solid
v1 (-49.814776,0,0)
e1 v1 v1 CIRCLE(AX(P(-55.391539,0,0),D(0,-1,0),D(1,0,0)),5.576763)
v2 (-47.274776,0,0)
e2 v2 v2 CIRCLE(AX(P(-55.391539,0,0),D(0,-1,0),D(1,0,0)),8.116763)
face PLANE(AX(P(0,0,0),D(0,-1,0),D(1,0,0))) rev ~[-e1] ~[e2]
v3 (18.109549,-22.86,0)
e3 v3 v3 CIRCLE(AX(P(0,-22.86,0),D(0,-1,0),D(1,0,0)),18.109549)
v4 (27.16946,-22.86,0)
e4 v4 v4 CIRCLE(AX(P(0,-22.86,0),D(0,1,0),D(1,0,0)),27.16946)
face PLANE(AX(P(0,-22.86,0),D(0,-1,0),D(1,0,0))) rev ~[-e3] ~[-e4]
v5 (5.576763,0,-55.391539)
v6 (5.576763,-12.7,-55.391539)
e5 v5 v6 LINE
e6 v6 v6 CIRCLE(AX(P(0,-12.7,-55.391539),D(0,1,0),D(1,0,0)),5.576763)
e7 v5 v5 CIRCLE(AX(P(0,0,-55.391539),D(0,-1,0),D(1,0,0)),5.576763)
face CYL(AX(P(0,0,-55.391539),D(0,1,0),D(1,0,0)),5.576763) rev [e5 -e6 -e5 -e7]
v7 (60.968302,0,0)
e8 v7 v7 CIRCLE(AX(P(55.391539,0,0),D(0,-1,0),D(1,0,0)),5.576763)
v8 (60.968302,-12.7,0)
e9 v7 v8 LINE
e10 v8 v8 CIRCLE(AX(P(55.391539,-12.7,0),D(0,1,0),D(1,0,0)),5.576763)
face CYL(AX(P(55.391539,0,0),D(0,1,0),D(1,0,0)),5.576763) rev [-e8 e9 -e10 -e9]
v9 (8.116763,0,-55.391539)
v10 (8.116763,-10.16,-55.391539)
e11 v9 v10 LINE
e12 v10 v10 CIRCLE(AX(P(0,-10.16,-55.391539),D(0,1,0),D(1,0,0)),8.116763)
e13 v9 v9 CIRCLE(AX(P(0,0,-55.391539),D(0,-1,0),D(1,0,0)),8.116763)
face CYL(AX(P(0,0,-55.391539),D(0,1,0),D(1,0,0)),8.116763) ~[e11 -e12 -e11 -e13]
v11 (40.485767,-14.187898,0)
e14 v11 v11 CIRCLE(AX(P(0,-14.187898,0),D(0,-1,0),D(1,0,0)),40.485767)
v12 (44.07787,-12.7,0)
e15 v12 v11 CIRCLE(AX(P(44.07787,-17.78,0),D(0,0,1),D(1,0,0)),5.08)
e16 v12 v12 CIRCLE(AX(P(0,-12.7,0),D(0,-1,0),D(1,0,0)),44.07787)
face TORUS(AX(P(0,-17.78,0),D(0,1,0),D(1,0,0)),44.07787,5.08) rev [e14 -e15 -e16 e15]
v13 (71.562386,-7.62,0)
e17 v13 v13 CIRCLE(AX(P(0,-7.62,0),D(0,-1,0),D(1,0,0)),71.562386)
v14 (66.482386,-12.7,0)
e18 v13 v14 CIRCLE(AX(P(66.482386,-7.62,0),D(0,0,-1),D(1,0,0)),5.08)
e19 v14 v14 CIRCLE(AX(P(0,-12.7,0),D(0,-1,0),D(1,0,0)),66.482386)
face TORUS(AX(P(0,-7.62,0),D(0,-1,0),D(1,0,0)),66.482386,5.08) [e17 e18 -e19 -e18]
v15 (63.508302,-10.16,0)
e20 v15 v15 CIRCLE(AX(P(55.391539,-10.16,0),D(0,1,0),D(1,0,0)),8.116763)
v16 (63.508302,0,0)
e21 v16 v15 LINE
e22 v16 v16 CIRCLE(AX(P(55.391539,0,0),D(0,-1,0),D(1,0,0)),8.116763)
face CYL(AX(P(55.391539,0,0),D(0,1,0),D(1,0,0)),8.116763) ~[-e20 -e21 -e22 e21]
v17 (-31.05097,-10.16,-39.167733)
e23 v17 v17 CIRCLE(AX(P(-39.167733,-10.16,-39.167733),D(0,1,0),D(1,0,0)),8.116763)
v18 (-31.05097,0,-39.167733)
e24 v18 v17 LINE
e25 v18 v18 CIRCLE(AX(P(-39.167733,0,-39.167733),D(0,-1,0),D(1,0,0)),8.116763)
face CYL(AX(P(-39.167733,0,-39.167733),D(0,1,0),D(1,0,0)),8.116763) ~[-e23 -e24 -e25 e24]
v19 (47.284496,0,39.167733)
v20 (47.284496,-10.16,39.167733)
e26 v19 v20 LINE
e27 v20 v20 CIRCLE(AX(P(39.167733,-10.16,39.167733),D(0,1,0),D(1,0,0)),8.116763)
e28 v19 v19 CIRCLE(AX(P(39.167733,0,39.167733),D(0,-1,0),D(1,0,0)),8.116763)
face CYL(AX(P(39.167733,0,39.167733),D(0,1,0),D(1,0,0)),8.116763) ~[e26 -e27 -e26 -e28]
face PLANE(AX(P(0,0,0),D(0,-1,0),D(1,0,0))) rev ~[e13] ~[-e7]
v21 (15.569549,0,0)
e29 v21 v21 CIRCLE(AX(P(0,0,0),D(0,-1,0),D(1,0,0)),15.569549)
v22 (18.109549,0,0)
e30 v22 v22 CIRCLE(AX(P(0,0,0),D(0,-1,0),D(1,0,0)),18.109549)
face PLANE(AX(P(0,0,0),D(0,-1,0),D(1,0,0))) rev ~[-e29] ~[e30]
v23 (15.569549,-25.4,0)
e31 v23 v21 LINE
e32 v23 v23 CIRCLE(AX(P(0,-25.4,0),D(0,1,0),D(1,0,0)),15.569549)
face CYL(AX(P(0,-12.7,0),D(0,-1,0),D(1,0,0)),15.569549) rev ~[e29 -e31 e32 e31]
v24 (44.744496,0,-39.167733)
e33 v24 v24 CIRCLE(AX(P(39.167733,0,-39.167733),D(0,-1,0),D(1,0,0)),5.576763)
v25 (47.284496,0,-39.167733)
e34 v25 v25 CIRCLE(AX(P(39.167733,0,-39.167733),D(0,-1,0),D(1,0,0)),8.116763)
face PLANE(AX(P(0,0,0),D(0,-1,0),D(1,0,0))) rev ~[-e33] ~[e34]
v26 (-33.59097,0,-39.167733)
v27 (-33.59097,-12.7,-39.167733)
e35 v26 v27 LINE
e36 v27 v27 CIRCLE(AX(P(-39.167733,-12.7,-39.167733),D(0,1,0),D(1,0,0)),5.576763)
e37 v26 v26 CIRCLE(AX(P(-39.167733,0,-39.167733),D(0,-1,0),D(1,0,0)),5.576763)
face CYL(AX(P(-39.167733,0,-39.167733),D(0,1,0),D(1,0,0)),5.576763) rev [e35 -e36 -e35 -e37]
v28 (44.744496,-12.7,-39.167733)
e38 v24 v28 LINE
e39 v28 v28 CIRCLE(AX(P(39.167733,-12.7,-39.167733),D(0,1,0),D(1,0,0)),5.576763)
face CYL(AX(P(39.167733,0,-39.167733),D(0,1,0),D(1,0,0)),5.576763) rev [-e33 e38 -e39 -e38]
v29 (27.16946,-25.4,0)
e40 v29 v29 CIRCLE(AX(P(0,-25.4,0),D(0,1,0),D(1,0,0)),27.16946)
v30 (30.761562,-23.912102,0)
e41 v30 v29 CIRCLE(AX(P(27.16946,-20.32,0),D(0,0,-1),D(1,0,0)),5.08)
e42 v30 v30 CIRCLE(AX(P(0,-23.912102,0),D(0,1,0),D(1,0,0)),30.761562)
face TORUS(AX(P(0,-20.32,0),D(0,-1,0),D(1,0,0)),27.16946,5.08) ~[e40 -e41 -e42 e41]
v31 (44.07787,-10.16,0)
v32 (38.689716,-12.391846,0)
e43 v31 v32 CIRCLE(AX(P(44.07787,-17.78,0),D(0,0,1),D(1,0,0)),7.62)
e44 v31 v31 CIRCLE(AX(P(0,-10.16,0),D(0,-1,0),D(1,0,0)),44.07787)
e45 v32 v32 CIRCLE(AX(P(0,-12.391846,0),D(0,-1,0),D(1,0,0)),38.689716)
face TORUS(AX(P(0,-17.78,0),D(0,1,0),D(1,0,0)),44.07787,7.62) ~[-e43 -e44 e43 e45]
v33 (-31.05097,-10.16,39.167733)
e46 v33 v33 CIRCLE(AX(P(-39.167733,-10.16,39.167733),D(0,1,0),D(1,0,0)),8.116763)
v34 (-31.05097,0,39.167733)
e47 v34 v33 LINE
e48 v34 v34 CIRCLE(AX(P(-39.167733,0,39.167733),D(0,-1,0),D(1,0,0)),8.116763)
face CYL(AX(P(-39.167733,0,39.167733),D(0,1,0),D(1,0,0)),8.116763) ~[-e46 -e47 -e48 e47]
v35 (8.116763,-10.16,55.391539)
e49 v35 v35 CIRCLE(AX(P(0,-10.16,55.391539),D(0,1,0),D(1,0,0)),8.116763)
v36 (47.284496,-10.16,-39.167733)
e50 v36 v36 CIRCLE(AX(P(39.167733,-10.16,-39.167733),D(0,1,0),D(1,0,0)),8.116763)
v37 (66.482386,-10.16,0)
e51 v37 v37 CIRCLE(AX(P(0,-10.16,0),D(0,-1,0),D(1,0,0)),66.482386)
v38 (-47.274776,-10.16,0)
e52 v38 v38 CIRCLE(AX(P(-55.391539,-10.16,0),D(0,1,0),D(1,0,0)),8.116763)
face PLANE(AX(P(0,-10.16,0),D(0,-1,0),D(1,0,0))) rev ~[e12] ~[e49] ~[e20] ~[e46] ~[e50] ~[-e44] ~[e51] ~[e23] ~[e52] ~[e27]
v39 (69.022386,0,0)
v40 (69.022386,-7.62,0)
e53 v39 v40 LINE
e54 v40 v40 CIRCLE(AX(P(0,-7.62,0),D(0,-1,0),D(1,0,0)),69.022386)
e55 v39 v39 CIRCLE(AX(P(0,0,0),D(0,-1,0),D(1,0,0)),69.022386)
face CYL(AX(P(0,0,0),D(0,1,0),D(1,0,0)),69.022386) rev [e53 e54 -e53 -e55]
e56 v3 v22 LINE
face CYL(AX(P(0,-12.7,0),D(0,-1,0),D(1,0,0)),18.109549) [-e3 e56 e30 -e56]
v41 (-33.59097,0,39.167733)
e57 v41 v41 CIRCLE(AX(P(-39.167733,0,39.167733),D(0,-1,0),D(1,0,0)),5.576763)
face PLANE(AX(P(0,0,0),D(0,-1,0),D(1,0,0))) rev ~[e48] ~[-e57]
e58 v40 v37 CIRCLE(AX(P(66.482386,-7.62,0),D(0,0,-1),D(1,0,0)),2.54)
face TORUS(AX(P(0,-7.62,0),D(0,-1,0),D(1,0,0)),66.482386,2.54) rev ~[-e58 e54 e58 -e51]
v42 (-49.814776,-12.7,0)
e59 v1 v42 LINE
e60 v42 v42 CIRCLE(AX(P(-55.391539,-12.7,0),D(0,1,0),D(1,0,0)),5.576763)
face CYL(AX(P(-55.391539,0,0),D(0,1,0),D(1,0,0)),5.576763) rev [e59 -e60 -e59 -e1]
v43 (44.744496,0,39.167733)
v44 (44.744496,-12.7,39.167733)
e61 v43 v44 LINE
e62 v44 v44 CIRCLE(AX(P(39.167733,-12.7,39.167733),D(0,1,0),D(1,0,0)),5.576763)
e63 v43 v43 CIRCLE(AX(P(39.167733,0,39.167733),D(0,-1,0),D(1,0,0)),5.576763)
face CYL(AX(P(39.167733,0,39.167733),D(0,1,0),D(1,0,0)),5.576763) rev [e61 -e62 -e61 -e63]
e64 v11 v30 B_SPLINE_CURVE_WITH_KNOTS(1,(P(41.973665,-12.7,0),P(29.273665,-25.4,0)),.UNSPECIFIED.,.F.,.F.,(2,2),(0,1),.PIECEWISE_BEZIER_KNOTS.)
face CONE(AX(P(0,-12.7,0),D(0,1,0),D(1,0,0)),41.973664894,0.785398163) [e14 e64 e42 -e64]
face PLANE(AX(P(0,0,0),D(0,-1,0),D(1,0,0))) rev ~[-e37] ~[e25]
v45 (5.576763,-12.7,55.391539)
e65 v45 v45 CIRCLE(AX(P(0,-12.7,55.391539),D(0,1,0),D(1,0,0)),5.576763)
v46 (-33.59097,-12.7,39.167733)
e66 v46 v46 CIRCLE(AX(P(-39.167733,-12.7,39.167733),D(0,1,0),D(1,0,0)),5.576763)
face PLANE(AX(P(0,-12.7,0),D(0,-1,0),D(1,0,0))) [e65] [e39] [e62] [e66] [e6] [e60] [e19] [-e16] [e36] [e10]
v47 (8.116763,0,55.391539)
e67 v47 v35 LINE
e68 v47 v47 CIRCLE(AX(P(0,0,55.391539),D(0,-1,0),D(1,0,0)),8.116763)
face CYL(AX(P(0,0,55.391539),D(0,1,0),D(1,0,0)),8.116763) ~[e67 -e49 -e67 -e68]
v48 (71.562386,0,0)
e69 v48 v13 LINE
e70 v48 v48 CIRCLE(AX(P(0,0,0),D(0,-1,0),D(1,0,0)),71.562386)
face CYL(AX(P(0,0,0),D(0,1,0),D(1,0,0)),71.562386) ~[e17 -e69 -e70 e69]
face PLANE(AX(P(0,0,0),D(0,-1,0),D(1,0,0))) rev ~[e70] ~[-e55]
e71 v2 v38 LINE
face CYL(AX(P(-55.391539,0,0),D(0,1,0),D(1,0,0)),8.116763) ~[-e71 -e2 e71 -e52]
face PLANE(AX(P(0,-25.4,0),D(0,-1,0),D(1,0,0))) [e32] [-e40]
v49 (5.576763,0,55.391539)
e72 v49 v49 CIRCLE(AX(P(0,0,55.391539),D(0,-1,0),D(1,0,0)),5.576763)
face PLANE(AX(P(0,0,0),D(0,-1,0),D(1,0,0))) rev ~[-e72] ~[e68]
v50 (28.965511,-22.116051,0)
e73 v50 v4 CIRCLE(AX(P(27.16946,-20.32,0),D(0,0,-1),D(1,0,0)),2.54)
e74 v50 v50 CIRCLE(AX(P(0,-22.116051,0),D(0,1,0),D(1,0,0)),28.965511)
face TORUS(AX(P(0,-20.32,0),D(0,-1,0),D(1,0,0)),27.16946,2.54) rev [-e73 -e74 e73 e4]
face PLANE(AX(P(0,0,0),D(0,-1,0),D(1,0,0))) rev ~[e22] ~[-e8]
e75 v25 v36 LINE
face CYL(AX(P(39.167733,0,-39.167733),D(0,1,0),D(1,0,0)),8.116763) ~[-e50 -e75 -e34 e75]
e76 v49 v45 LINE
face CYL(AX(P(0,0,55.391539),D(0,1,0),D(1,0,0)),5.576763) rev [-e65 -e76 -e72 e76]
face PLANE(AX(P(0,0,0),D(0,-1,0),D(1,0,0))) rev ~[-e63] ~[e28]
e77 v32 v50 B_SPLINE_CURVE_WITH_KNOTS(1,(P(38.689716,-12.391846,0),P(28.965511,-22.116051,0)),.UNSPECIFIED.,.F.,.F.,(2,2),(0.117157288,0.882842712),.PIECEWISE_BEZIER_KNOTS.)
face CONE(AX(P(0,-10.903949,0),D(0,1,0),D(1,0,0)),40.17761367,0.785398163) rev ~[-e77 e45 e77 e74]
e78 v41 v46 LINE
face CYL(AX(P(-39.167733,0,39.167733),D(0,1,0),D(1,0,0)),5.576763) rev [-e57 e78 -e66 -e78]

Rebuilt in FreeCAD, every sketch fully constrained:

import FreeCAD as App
import Part
import Sketcher

V = App.Vector


def edges_at(feature, points):
    """Names of the edges that pass closest to the given points."""
    edges = feature.Shape.Edges
    near = lambda p: min(range(len(edges)), key=lambda i: edges[i].distToShape(Part.Vertex(*p))[0])
    return sorted({f"Edge{near(p) + 1}" for p in points})


def faces_at(feature, points):
    """Names of the faces that lie closest to the given points."""
    faces = feature.Shape.Faces
    near = lambda p: min(range(len(faces)), key=lambda i: faces[i].distToShape(Part.Vertex(*p))[0])
    return sorted({f"Face{near(p) + 1}" for p in points})

doc = App.newDocument("Part")
params = doc.addObject("Spreadsheet::Sheet", "Params")
for row, (alias, value) in enumerate([
    ("pad1_length", "0.5 in"),
    ("pad2_length", "0.5 in"),
    ("pad2_taper", "-45 deg"),
    ("pocket2_length", "1 in"),
    ("fillet_radius", "0.2 in"),
    ("thickness_wall", "0.1 in"),
], start=1):
    params.set(f"A{row}", alias)
    params.set(f"B{row}", "=" + value)
    params.setAlias(f"B{row}", alias)

body = doc.addObject("PartDesign::Body", "Body")

# Sketch on XZ plane
sketch1 = body.newObject("Sketcher::SketchObject", "Sketch")
sketch1.AttachmentSupport = (doc.getObject("XZ_Plane"), [""])
sketch1.MapMode = "FlatFace"
sketch1.addGeometry(Part.Circle(V(0, 0, 0), V(0, 0, 1), 72), False)
sketch1.addConstraint(Sketcher.Constraint("Coincident", 0, 3, -1, 1))
sketch1.addConstraint(Sketcher.Constraint("Diameter", 0, 143.124772))
pad1 = body.newObject("PartDesign::Pad", "Pad")
pad1.Profile = sketch1
pad1.setExpression("Length", "Params.pad1_length")

# Sketch on XZ plane
sketch2 = body.newObject("Sketcher::SketchObject", "Sketch001")
sketch2.AttachmentSupport = (doc.getObject("XZ_Plane"), [""])
sketch2.MapMode = "FlatFace"
sketch2.AttachmentOffset = App.Placement(V(0, 0, 0.5 * 25.4), App.Rotation())
sketch2.addGeometry(Part.Circle(V(0, 0, 0), V(0, 0, 1), 42), False)
sketch2.addConstraint(Sketcher.Constraint("Coincident", 0, 3, -1, 1))
sketch2.addConstraint(Sketcher.Constraint("Diameter", 0, 83.94733))
pad2 = body.newObject("PartDesign::Pad", "Pad001")
pad2.Profile = sketch2
pad2.setExpression("Length", "Params.pad2_length")
pad2.setExpression("TaperAngle", "Params.pad2_taper")

# Sketch on XZ plane
sketch3 = body.newObject("Sketcher::SketchObject", "Sketch002")
sketch3.AttachmentSupport = (doc.getObject("XZ_Plane"), [""])
sketch3.MapMode = "FlatFace"
sketch3.AttachmentOffset = App.Placement(V(0, 0, 0.5 * 25.4), App.Rotation())
sketch3.addGeometry(Part.Circle(V(0, 0, 0), V(0, 0, 1), 16), False)
sketch3.addConstraint(Sketcher.Constraint("Coincident", 0, 3, -1, 1))
sketch3.addConstraint(Sketcher.Constraint("Diameter", 0, 31.139097))
pocket1 = body.newObject("PartDesign::Pocket", "Pocket")
pocket1.Profile = sketch3
pocket1.Type = "ThroughAll"
pocket1.Midplane = True

# Sketch on XZ plane
sketch4 = body.newObject("Sketcher::SketchObject", "Sketch003")
sketch4.AttachmentSupport = (doc.getObject("XZ_Plane"), [""])
sketch4.MapMode = "FlatFace"
sketch4.addGeometry(Part.Circle(V(0, 55, 0), V(0, 0, 1), 6), False)
sketch4.addGeometry(Part.Circle(V(-39, 39, 0), V(0, 0, 1), 6), False)
sketch4.addGeometry(Part.Circle(V(-55, 0, 0), V(0, 0, 1), 6), False)
sketch4.addGeometry(Part.Circle(V(-39, -39, 0), V(0, 0, 1), 6), False)
sketch4.addGeometry(Part.Circle(V(0, -55, 0), V(0, 0, 1), 6), False)
sketch4.addGeometry(Part.Circle(V(39, -39, 0), V(0, 0, 1), 6), False)
sketch4.addGeometry(Part.Circle(V(55, 0, 0), V(0, 0, 1), 6), False)
sketch4.addGeometry(Part.Circle(V(39, 39, 0), V(0, 0, 1), 6), False)
sketch4.addConstraint(Sketcher.Constraint("Equal", 0, 1))
sketch4.addConstraint(Sketcher.Constraint("Equal", 1, 2))
sketch4.addConstraint(Sketcher.Constraint("Equal", 2, 3))
sketch4.addConstraint(Sketcher.Constraint("Equal", 3, 4))
sketch4.addConstraint(Sketcher.Constraint("Equal", 4, 5))
sketch4.addConstraint(Sketcher.Constraint("Equal", 5, 6))
sketch4.addConstraint(Sketcher.Constraint("Equal", 6, 7))
sketch4.addConstraint(Sketcher.Constraint("Symmetric", 0, 3, 4, 3, -1, 1))
sketch4.addConstraint(Sketcher.Constraint("Symmetric", 1, 3, 5, 3, -1, 1))
sketch4.addConstraint(Sketcher.Constraint("Symmetric", 2, 3, 6, 3, -1, 1))
sketch4.addConstraint(Sketcher.Constraint("Symmetric", 3, 3, 7, 3, -1, 1))
sketch4.addConstraint(Sketcher.Constraint("Symmetric", 3, 3, 5, 3, -2))
sketch4.addConstraint(Sketcher.Constraint("PointOnObject", 0, 3, -2))
sketch4.addConstraint(Sketcher.Constraint("PointOnObject", 2, 3, -1))
sketch4.addConstraint(Sketcher.Constraint("Diameter", 0, 11.153526))
sketch4.addConstraint(Sketcher.Constraint("DistanceY", -1, 1, 0, 3, 55.391539))
sketch4.addConstraint(Sketcher.Constraint("DistanceX", 2, 3, -1, 1, 55.391539))
sketch4.addConstraint(Sketcher.Constraint("DistanceY", 3, 3, 0, 3, 94.559272))
sketch4.addConstraint(Sketcher.Constraint("DistanceX", 2, 3, 5, 3, 94.559272))
pocket2 = body.newObject("PartDesign::Pocket", "Pocket001")
pocket2.Profile = sketch4
pocket2.setExpression("Length", "Params.pocket2_length")
pocket2.Reversed = True
doc.recompute()

fillet = body.newObject("PartDesign::Fillet", "Fillet")
fillet.Base = (pocket2, edges_at(pocket2, [(-71.562, -12.7, 0), (-41.974, -12.7, 0), (-29.274, -25.4, 0)]))
fillet.setExpression("Radius", "Params.fillet_radius")
doc.recompute()

thickness = body.newObject("PartDesign::Thickness", "Thickness")
thickness.Base = (fillet, faces_at(fillet, [(-28.625, 0, -28.625)]))
thickness.setExpression("Value", "Params.thickness_wall")
thickness.Reversed = True
thickness.Join = "Arc"

doc.recompute()
